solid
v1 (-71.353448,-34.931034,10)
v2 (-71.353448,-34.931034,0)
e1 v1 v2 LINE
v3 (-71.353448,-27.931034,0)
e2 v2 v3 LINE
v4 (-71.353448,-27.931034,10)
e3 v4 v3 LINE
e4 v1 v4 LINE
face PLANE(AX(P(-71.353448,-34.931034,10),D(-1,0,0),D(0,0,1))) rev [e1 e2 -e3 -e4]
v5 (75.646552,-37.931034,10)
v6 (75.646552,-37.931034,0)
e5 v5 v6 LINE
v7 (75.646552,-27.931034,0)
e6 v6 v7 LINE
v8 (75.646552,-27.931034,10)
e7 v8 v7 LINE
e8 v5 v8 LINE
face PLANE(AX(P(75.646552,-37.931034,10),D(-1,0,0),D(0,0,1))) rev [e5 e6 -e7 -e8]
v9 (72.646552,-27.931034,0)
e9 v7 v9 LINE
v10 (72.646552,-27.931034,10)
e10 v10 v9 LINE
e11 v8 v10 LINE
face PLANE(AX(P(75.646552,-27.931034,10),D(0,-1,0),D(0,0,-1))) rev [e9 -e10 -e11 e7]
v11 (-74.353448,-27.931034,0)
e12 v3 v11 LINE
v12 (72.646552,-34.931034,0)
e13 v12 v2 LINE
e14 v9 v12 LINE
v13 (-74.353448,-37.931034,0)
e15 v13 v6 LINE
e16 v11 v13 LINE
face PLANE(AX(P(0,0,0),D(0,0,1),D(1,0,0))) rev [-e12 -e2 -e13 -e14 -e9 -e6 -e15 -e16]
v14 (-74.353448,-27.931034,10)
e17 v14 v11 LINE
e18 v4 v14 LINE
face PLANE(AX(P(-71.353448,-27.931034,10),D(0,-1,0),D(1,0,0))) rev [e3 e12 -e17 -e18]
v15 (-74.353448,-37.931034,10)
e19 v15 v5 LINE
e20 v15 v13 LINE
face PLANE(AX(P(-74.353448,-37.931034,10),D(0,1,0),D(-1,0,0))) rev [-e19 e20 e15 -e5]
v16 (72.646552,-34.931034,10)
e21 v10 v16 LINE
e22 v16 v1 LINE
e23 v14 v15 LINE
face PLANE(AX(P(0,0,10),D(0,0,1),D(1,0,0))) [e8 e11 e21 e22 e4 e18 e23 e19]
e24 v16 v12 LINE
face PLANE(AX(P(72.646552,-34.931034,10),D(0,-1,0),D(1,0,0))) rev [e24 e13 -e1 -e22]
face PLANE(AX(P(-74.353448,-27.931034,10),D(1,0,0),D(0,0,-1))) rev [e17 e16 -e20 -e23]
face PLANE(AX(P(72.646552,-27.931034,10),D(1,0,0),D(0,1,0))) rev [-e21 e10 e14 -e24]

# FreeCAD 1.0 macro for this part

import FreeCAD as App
import Part
import Sketcher

doc = App.newDocument("Part")
body = doc.addObject("PartDesign::Body", "Body")

sketch1 = body.newObject("Sketcher::SketchObject", "Sketch")
sketch1.AttachmentSupport = (doc.getObject("XY_Plane"), [""])
sketch1.MapMode = "FlatFace"
sketch1.addGeometry([
    Part.LineSegment(App.Vector(-74.4, -37.9, 0), App.Vector(75.6, -37.9, 0)),
    Part.LineSegment(App.Vector(75.6, -37.9, 0), App.Vector(75.6, -27.9, 0)),
    Part.LineSegment(App.Vector(75.6, -27.9, 0), App.Vector(72.6, -27.9, 0)),
    Part.LineSegment(App.Vector(72.6, -27.9, 0), App.Vector(72.6, -34.9, 0)),
    Part.LineSegment(App.Vector(72.6, -34.9, 0), App.Vector(-71.4, -34.9, 0)),
    Part.LineSegment(App.Vector(-71.4, -34.9, 0), App.Vector(-71.4, -27.9, 0)),
    Part.LineSegment(App.Vector(-71.4, -27.9, 0), App.Vector(-74.4, -27.9, 0)),
    Part.LineSegment(App.Vector(-74.4, -27.9, 0), App.Vector(-74.4, -37.9, 0)),
], False)
sketch1.addConstraint([
    Sketcher.Constraint("Coincident", 0, 2, 1, 1),
    Sketcher.Constraint("Coincident", 1, 2, 2, 1),
    Sketcher.Constraint("Coincident", 2, 2, 3, 1),
    Sketcher.Constraint("Coincident", 3, 2, 4, 1),
    Sketcher.Constraint("Coincident", 4, 2, 5, 1),
    Sketcher.Constraint("Coincident", 5, 2, 6, 1),
    Sketcher.Constraint("Coincident", 6, 2, 7, 1),
    Sketcher.Constraint("Coincident", 7, 2, 0, 1),
    Sketcher.Constraint("Horizontal", 0),
    Sketcher.Constraint("Vertical", 1),
    Sketcher.Constraint("Horizontal", 2),
    Sketcher.Constraint("Vertical", 3),
    Sketcher.Constraint("Horizontal", 4),
    Sketcher.Constraint("Vertical", 5),
    Sketcher.Constraint("Horizontal", 6),
    Sketcher.Constraint("Vertical", 7),
    Sketcher.Constraint("Horizontal", 2, 2, 5, 2),
    Sketcher.Constraint("Equal", 2, 6),
    Sketcher.Constraint("DistanceX", 0, 1, 0, 2, 150.0),
    Sketcher.Constraint("DistanceX", 2, 2, 2, 1, 3.0),
    Sketcher.Constraint("DistanceY", 1, 1, 1, 2, 10.0),
    Sketcher.Constraint("DistanceY", 3, 2, 3, 1, 7.0),
    Sketcher.Constraint("DistanceX", -1, 1, 0, 2, 75.646552),
    Sketcher.Constraint("DistanceY", 0, 2, -1, 1, 37.931034),
])
pad1 = body.newObject("PartDesign::Pad", "Pad")
pad1.Profile = sketch1
pad1.Length = 10

doc.recompute()
